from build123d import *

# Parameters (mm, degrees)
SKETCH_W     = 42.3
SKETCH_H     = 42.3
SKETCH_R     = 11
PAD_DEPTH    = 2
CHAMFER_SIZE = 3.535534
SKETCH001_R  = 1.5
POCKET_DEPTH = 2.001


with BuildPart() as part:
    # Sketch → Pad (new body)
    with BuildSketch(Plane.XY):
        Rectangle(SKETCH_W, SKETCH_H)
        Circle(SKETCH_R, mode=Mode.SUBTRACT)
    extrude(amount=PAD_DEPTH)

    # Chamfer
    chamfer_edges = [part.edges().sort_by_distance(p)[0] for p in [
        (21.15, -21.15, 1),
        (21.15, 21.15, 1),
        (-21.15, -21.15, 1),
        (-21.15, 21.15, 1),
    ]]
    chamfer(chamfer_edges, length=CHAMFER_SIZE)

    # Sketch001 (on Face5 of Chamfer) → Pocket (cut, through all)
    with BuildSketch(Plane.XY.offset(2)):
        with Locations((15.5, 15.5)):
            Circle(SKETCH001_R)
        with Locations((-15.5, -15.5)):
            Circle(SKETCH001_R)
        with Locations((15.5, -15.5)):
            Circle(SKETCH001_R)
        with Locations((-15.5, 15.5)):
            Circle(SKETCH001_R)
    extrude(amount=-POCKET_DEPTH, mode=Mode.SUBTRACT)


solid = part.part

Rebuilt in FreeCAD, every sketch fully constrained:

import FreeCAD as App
import Part
import Sketcher

V = App.Vector
Q = App.Units.Quantity


def edges_at(feature, points):
    """Names of the edges that pass closest to the given points."""
    edges = feature.Shape.Edges
    near = lambda p: min(range(len(edges)), key=lambda i: edges[i].distToShape(Part.Vertex(*p))[0])
    return sorted({f"Edge{near(p) + 1}" for p in points})

doc = App.newDocument("Part")
body = doc.addObject("PartDesign::Body", "Body")

sketch1 = doc.addObject("Sketcher::SketchObject", "Sketch")
body.addObject(sketch1)
sketch1.AttachmentSupport = (doc.XY_Plane, [""])
sketch1.MapMode = "FlatFace"
sketch1.addGeometry(Part.LineSegment(V(-21.15, 21.15, 0), V(-21.15, -21.15, 0)), False)
sketch1.addGeometry(Part.LineSegment(V(-21.15, -21.15, 0), V(21.15, -21.15, 0)), False)
sketch1.addGeometry(Part.LineSegment(V(21.15, -21.15, 0), V(21.15, 21.15, 0)), False)
sketch1.addGeometry(Part.LineSegment(V(21.15, 21.15, 0), V(-21.15, 21.15, 0)), False)
sketch1.addGeometry(Part.Circle(V(0, 0, 0), V(0, 0, 1), 11), False)
sketch1.addConstraint(Sketcher.Constraint("Coincident", 0, 2, 1, 1))
sketch1.addConstraint(Sketcher.Constraint("Coincident", 1, 2, 2, 1))
sketch1.addConstraint(Sketcher.Constraint("Coincident", 2, 2, 3, 1))
sketch1.addConstraint(Sketcher.Constraint("Coincident", 3, 2, 0, 1))
sketch1.addConstraint(Sketcher.Constraint("Vertical", 0))
sketch1.addConstraint(Sketcher.Constraint("Horizontal", 1))
sketch1.addConstraint(Sketcher.Constraint("Vertical", 2))
sketch1.addConstraint(Sketcher.Constraint("Horizontal", 3))
sketch1.addConstraint(Sketcher.Constraint("Coincident", 4, 3, -1, 1))
sketch1.addConstraint(Sketcher.Constraint("Symmetric", 0, 2, 2, 2, -1, 1))
sketch1.addConstraint(Sketcher.Constraint("Equal", 3, 0))
sketch1.addConstraint(Sketcher.Constraint("Diameter", 4, Q("22 mm")))
sketch1.addConstraint(Sketcher.Constraint("DistanceX", 1, 1, 1, 2, Q("42.3 mm")))
pad1 = doc.addObject("PartDesign::Pad", "Pad")
body.addObject(pad1)
pad1.Profile = sketch1
pad1.Length = 2
doc.recompute()

chamfer = doc.addObject("PartDesign::Chamfer", "Chamfer")
body.addObject(chamfer)
chamfer.Base = (pad1, edges_at(pad1, [
    (21.15, -21.15, 1),
    (21.15, 21.15, 1),
    (-21.15, -21.15, 1),
    (-21.15, 21.15, 1),
]))
chamfer.Size = 3.535534

sketch2 = doc.addObject("Sketcher::SketchObject", "Sketch001")
body.addObject(sketch2)
sketch2.AttachmentSupport = (doc.XY_Plane, [""])
sketch2.MapMode = "FlatFace"
sketch2.AttachmentOffset = App.Placement(V(0, 0, 2), App.Rotation())
sketch2.addGeometry(Part.Circle(V(15.5, 15.5, 0), V(0, 0, 1), 1.5), False)
sketch2.addGeometry(Part.Circle(V(-15.5, -15.5, 0), V(0, 0, 1), 1.5), False)
sketch2.addGeometry(Part.Circle(V(15.5, -15.5, 0), V(0, 0, 1), 1.5), False)
sketch2.addGeometry(Part.Circle(V(-15.5, 15.5, 0), V(0, 0, 1), 1.5), False)
sketch2.addConstraint(Sketcher.Constraint("Equal", 0, 1))
sketch2.addConstraint(Sketcher.Constraint("Equal", 1, 2))
sketch2.addConstraint(Sketcher.Constraint("Equal", 2, 3))
sketch2.addConstraint(Sketcher.Constraint("Symmetric", 0, 3, 1, 3, -1, 1))
sketch2.addConstraint(Sketcher.Constraint("Symmetric", 2, 3, 3, 3, -1, 1))
sketch2.addConstraint(Sketcher.Constraint("Symmetric", 1, 3, 2, 3, -2))
sketch2.addConstraint(Sketcher.Constraint("Diameter", 0, Q("3 mm")))
sketch2.addConstraint(Sketcher.Constraint("DistanceX", 1, 3, 0, 3, Q("31 mm")))
sketch2.addConstraint(Sketcher.Constraint("DistanceY", 1, 3, 0, 3, Q("31 mm")))
pocket1 = doc.addObject("PartDesign::Pocket", "Pocket")
body.addObject(pocket1)
pocket1.Profile = sketch2
pocket1.Type = "ThroughAll"

doc.recompute()
